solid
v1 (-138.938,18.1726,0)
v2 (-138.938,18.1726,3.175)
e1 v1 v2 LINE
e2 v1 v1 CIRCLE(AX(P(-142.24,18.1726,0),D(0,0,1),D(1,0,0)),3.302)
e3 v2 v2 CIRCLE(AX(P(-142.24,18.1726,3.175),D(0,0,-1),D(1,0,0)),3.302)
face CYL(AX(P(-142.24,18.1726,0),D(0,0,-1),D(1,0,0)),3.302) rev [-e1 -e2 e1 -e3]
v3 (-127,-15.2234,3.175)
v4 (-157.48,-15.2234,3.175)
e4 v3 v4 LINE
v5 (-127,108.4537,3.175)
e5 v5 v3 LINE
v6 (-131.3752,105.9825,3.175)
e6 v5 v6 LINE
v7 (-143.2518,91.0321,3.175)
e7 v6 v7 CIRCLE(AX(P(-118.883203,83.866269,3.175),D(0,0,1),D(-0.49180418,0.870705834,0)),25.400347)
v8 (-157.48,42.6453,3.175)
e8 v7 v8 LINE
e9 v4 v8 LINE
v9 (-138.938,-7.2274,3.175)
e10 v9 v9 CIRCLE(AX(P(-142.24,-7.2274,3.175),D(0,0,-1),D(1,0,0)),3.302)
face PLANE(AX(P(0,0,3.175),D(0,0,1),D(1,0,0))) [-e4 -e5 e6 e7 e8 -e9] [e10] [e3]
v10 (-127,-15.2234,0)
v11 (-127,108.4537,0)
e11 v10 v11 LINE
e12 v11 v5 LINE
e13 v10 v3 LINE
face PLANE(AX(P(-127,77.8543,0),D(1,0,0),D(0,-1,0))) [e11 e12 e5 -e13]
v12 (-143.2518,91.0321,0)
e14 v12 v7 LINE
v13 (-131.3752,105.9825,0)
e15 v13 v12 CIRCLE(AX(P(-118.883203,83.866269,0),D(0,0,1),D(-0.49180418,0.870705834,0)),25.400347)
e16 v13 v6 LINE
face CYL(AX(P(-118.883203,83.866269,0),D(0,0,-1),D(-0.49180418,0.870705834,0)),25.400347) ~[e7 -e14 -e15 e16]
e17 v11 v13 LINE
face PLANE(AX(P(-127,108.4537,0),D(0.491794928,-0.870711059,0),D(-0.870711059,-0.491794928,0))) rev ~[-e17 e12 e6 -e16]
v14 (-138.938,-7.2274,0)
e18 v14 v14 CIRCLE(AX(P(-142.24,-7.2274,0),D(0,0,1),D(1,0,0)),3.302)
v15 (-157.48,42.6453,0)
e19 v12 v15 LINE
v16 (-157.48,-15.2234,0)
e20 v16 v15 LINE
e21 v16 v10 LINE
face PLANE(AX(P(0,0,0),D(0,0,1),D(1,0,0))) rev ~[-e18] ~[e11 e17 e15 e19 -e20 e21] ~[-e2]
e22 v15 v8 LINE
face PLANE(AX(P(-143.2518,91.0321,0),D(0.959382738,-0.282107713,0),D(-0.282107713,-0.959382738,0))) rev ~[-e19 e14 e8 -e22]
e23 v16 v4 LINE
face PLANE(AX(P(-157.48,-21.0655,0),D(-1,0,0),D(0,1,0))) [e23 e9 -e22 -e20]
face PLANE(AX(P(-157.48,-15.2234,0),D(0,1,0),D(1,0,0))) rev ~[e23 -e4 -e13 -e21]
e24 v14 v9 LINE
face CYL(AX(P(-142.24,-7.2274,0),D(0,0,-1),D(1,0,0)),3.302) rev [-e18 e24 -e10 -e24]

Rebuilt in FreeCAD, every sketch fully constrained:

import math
import FreeCAD as App
import Part
import Sketcher

V = App.Vector
Q = App.Units.Quantity


def add_polygon(sketch, points):
    """Adds a closed chain of lines whose ends are joined by coincident constraints."""
    first, n = sketch.GeometryCount, len(points)
    for a, b in zip(points, points[1:] + points[:1]):
        sketch.addGeometry(Part.LineSegment(App.Vector(*a, 0), App.Vector(*b, 0)), False)
    for i in range(n):
        sketch.addConstraint(Sketcher.Constraint("Coincident", first + i, 2, first + (i + 1) % n, 1))

doc = App.newDocument("Part")
body = doc.addObject("PartDesign::Body", "Body")

sketch1 = body.newObject("Sketcher::SketchObject", "Sketch")
sketch1.AttachmentSupport = (doc.getObject("XY_Plane"), [""])
sketch1.MapMode = "FlatFace"
sketch1.addGeometry(Part.LineSegment(V(-127, -21.1, 0), V(-127, 108.5, 0)), False)
sketch1.addGeometry(Part.LineSegment(V(-127, 108.5, 0), V(-131.4, 106, 0)), False)
sketch1.addGeometry(Part.ArcOfCircle(Part.Circle(V(-118.9, 83.9, 0), V(0, 0, 1), 25.4), math.radians(119), math.radians(164)), False)
sketch1.addGeometry(Part.LineSegment(V(-143.3, 91, 0), V(-157.5, 42.6, 0)), False)
sketch1.addGeometry(Part.LineSegment(V(-157.5, 42.6, 0), V(-157.5, -21.1, 0)), False)
sketch1.addGeometry(Part.LineSegment(V(-157.5, -21.1, 0), V(-127, -21.1, 0)), False)
sketch1.addGeometry(Part.Circle(V(-142.2, -7.2, 0), V(0, 0, 1), 3.3), False)
sketch1.addGeometry(Part.Circle(V(-142.2, 18.2, 0), V(0, 0, 1), 3.3), False)
sketch1.addConstraint(Sketcher.Constraint("Coincident", 0, 2, 1, 1))
sketch1.addConstraint(Sketcher.Constraint("Tangent", 1, 2, 2, 1))
sketch1.addConstraint(Sketcher.Constraint("Tangent", 2, 2, 3, 1))
sketch1.addConstraint(Sketcher.Constraint("Coincident", 3, 2, 4, 1))
sketch1.addConstraint(Sketcher.Constraint("Coincident", 4, 2, 5, 1))
sketch1.addConstraint(Sketcher.Constraint("Coincident", 5, 2, 0, 1))
sketch1.addConstraint(Sketcher.Constraint("Vertical", 0))
sketch1.addConstraint(Sketcher.Constraint("Vertical", 4))
sketch1.addConstraint(Sketcher.Constraint("Horizontal", 5))
sketch1.addConstraint(Sketcher.Constraint("Equal", 6, 7))
sketch1.addConstraint(Sketcher.Constraint("Vertical", 6, 3, 7, 3))
sketch1.addConstraint(Sketcher.Constraint("Radius", 2, Q("1 in")))
sketch1.addConstraint(Sketcher.Constraint("Diameter", 6, Q("0.26 in")))
sketch1.addConstraint(Sketcher.Constraint("DistanceY", 6, 3, 7, 3, Q("1 in")))
sketch1.addConstraint(Sketcher.Constraint("DistanceX", 7, 3, 0, 2, Q("0.6 in")))
sketch1.addConstraint(Sketcher.Constraint("DistanceX", 3, 2, 7, 3, Q("0.6 in")))
sketch1.addConstraint(Sketcher.Constraint("DistanceX", 0, 2, -1, 1, Q("5 in")))
sketch1.addConstraint(Sketcher.Constraint("DistanceY", 4, 2, 4, 1, Q("2.5083 in")))
sketch1.addConstraint(Sketcher.Constraint("DistanceY", 2, 3, 0, 2, Q("0.968 in")))
sketch1.addConstraint(Sketcher.Constraint("DistanceY", 3, 2, 2, 2, Q("1.905 in")))
sketch1.addConstraint(Sketcher.Constraint("DistanceY", 0, 1, 0, 2, 129.5192))
sketch1.addConstraint(Sketcher.Constraint("DistanceY", 7, 3, 3, 2, Q("0.9635 in")))
sketch1.addConstraint(Sketcher.Constraint("DistanceY", -1, 1, 2, 3, 83.8665))
pad1 = body.newObject("PartDesign::Pad", "Pad")
pad1.Profile = sketch1
pad1.Length = Q("0.125 in")

sketch2 = body.newObject("Sketcher::SketchObject", "Sketch001")
sketch2.AttachmentSupport = (doc.getObject("XY_Plane"), [""])
sketch2.MapMode = "FlatFace"
add_polygon(sketch2, [(-127, -15), (-127, -21), (-157, -21), (-157, -15)])
sketch2.addConstraint(Sketcher.Constraint("Vertical", 0))
sketch2.addConstraint(Sketcher.Constraint("Horizontal", 1))
sketch2.addConstraint(Sketcher.Constraint("Vertical", 2))
sketch2.addConstraint(Sketcher.Constraint("Horizontal", 3))
sketch2.addConstraint(Sketcher.Constraint("DistanceX", 1, 2, 1, 1, Q("1.2 in")))
sketch2.addConstraint(Sketcher.Constraint("DistanceX", 0, 2, -1, 1, Q("5 in")))
sketch2.addConstraint(Sketcher.Constraint("DistanceY", 0, 2, 0, 1, Q("0.23 in")))
sketch2.addConstraint(Sketcher.Constraint("DistanceY", 0, 2, -1, 1, 21.0655))
pocket1 = body.newObject("PartDesign::Pocket", "Pocket")
pocket1.Profile = sketch2
pocket1.Length = Q("1 in")
pocket1.Reversed = True

doc.recompute()
